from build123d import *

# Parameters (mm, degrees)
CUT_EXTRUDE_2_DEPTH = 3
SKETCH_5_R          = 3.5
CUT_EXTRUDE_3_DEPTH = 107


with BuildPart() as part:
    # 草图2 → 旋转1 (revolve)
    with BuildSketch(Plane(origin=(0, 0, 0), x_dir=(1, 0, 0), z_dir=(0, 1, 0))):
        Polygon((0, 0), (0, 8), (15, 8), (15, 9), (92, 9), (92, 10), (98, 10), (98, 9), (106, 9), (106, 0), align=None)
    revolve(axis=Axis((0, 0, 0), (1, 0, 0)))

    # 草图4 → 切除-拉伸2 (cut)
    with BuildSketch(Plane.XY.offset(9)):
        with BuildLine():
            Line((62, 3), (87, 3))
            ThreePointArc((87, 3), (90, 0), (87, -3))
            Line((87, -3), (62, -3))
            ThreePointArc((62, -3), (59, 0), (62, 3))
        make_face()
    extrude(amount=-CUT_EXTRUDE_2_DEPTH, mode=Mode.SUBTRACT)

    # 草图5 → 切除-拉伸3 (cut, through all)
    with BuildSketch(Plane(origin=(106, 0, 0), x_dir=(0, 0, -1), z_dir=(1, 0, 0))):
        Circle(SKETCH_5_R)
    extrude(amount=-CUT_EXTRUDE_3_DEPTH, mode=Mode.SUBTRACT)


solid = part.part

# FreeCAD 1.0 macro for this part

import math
import FreeCAD as App
import Part
import Sketcher
from FreeCAD import Vector
Q = App.Units.Quantity


def add_polygon(sketch, points):
    """Adds a closed chain of lines whose ends are joined by coincident constraints."""
    first, n = sketch.GeometryCount, len(points)
    for a, b in zip(points, points[1:] + points[:1]):
        sketch.addGeometry(Part.LineSegment(App.Vector(*a, 0), App.Vector(*b, 0)), False)
    for i in range(n):
        sketch.addConstraint(Sketcher.Constraint("Coincident", first + i, 2, first + (i + 1) % n, 1))

doc = App.newDocument("Part")
params = doc.addObject("Spreadsheet::Sheet", "Params")
for row, (alias, value) in enumerate([
    ("sketch1_width", "106 mm"),
    ("sketch1_width2", "8 mm"),
    ("sketch1_width3", "6 mm"),
    ("sketch1_width4", "77 mm"),
    ("sketch1_height", "9 mm"),
    ("revolution_angle", "360 deg"),
    ("sketch2_radius", "3 mm"),
    ("sketch2_width", "25 mm"),
    ("pocket1_length", "3 mm"),
    ("sketch3_diameter", "7 mm"),
], start=1):
    params.set(f"A{row}", alias)
    params.set(f"B{row}", "=" + value)
    params.setAlias(f"B{row}", alias)

body = doc.addObject("PartDesign::Body", "Body")

sketch1 = body.newObject("Sketcher::SketchObject", "Sketch")
sketch1.AttachmentSupport = (doc.getObject("XZ_Plane"), [""])
sketch1.MapMode = "FlatFace"
add_polygon(sketch1, [(0, -8), (0, 0), (106, 0), (106, -9), (98, -9), (98, -10), (92, -10), (92, -9), (15, -9), (15, -8)])
sketch1.addConstraint(Sketcher.Constraint("Vertical", 0))
sketch1.addConstraint(Sketcher.Constraint("Horizontal", 1))
sketch1.addConstraint(Sketcher.Constraint("Vertical", 2))
sketch1.addConstraint(Sketcher.Constraint("Horizontal", 3))
sketch1.addConstraint(Sketcher.Constraint("Vertical", 4))
sketch1.addConstraint(Sketcher.Constraint("Horizontal", 5))
sketch1.addConstraint(Sketcher.Constraint("Vertical", 6))
sketch1.addConstraint(Sketcher.Constraint("Horizontal", 7))
sketch1.addConstraint(Sketcher.Constraint("Vertical", 8))
sketch1.addConstraint(Sketcher.Constraint("Horizontal", 9))
sketch1.addConstraint(Sketcher.Constraint("Coincident", 0, 2, -1, 1))
sketch1.addConstraint(Sketcher.Constraint("Horizontal", 3, 2, 6, 2))
sketch1.addConstraint(Sketcher.Constraint("Equal", 3, 0))
sketch1.addConstraint(Sketcher.Constraint("Equal", 6, 8))
sketch1.addConstraint(Sketcher.Constraint("DistanceX", 1, 1, 1, 2, Q("106 mm")))
sketch1.addConstraint(Sketcher.Constraint("DistanceX", 3, 2, 3, 1, Q("8 mm")))
sketch1.addConstraint(Sketcher.Constraint("DistanceX", 5, 2, 5, 1, Q("6 mm")))
sketch1.addConstraint(Sketcher.Constraint("DistanceX", 7, 2, 7, 1, Q("77 mm")))
sketch1.addConstraint(Sketcher.Constraint("DistanceY", 2, 2, 2, 1, Q("9 mm")))
sketch1.setExpression("Constraints[24]", "Params.sketch1_width")
sketch1.setExpression("Constraints[25]", "Params.sketch1_width2")
sketch1.setExpression("Constraints[26]", "Params.sketch1_width3")
sketch1.setExpression("Constraints[27]", "Params.sketch1_width4")
sketch1.setExpression("Constraints[28]", "Params.sketch1_height")
revolution = body.newObject("PartDesign::Revolution", "Revolution")
revolution.Profile = sketch1
revolution.ReferenceAxis = (sketch1, ["H_Axis"])
revolution.setExpression("Angle", "Params.revolution_angle")

sketch2 = body.newObject("Sketcher::SketchObject", "Sketch001")
sketch2.AttachmentSupport = (doc.getObject("XY_Plane"), [""])
sketch2.MapMode = "FlatFace"
sketch2.AttachmentOffset = App.Placement(Vector(0, 0, 9), App.Rotation())
sketch2.addGeometry(Part.LineSegment(Vector(87, 3, 0), Vector(62, 3, 0)), False)
sketch2.addGeometry(Part.ArcOfCircle(Part.Circle(Vector(62, 0, 0), Vector(0, 0, 1), 3), math.radians(90), math.radians(270)), False)
sketch2.addGeometry(Part.LineSegment(Vector(62, -3, 0), Vector(87, -3, 0)), False)
sketch2.addGeometry(Part.ArcOfCircle(Part.Circle(Vector(87, 0, 0), Vector(0, 0, 1), 3), math.radians(-90), math.radians(90)), False)
sketch2.addConstraint(Sketcher.Constraint("Tangent", 0, 2, 1, 1))
sketch2.addConstraint(Sketcher.Constraint("Tangent", 1, 2, 2, 1))
sketch2.addConstraint(Sketcher.Constraint("Tangent", 2, 2, 3, 1))
sketch2.addConstraint(Sketcher.Constraint("Tangent", 3, 2, 0, 1))
sketch2.addConstraint(Sketcher.Constraint("Horizontal", 0))
sketch2.addConstraint(Sketcher.Constraint("Horizontal", 2))
sketch2.addConstraint(Sketcher.Constraint("PointOnObject", 1, 3, -1))
sketch2.addConstraint(Sketcher.Constraint("Radius", 1, Q("3 mm")))
sketch2.addConstraint(Sketcher.Constraint("DistanceX", 0, 2, 0, 1, Q("25 mm")))
sketch2.addConstraint(Sketcher.Constraint("DistanceX", -1, 1, 1, 3, Q("62 mm")))
sketch2.setExpression("Constraints[7]", "Params.sketch2_radius")
sketch2.setExpression("Constraints[8]", "Params.sketch2_width")
pocket1 = body.newObject("PartDesign::Pocket", "Pocket")
pocket1.Profile = sketch2
pocket1.setExpression("Length", "Params.pocket1_length")

sketch3 = body.newObject("Sketcher::SketchObject", "Sketch002")
sketch3.AttachmentSupport = (doc.getObject("YZ_Plane"), [""])
sketch3.MapMode = "FlatFace"
sketch3.AttachmentOffset = App.Placement(Vector(0, 0, 106), App.Rotation())
sketch3.addGeometry(Part.Circle(Vector(0, 0, 0), Vector(0, 0, 1), 3.5), False)
sketch3.addConstraint(Sketcher.Constraint("Coincident", 0, 3, -1, 1))
sketch3.addConstraint(Sketcher.Constraint("Diameter", 0, Q("7 mm")))
sketch3.setExpression("Constraints[1]", "Params.sketch3_diameter")
pocket2 = body.newObject("PartDesign::Pocket", "Pocket001")
pocket2.Profile = sketch3
pocket2.Type = "ThroughAll"

doc.recompute()
